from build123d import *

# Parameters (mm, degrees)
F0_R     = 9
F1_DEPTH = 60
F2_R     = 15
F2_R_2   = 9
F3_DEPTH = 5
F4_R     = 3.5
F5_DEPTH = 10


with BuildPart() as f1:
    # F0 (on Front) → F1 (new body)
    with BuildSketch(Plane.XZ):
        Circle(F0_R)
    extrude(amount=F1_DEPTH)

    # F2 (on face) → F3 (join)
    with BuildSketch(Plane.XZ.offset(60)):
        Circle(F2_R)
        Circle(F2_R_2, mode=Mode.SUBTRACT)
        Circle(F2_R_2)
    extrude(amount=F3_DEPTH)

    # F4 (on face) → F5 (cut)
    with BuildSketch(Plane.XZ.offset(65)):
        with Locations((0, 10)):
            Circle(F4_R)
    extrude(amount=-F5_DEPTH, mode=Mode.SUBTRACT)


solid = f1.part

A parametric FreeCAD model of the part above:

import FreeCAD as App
import Part
import Sketcher

V = App.Vector

doc = App.newDocument("Part")
body = doc.addObject("PartDesign::Body", "Body")

# Sketch on XZ plane
sketch1 = body.newObject("Sketcher::SketchObject", "Sketch")
sketch1.AttachmentSupport = (doc.getObject("XZ_Plane"), [""])
sketch1.MapMode = "FlatFace"
sketch1.addGeometry(Part.Circle(V(0, 0, 0), V(0, 0, 1), 9), False)
sketch1.addConstraint([
    Sketcher.Constraint("Coincident", 0, 3, -1, 1),
    Sketcher.Constraint("Diameter", 0, 18.0),
])
pad1 = body.newObject("PartDesign::Pad", "Pad")
pad1.Profile = sketch1
pad1.Length = 60

# Sketch on XZ plane
sketch2 = body.newObject("Sketcher::SketchObject", "Sketch001")
sketch2.AttachmentSupport = (doc.getObject("XZ_Plane"), [""])
sketch2.MapMode = "FlatFace"
sketch2.AttachmentOffset = App.Placement(V(0, 0, 60), App.Rotation())
sketch2.addGeometry(Part.Circle(V(0, 0, 0), V(0, 0, 1), 15), False)
sketch2.addConstraint([
    Sketcher.Constraint("Coincident", 0, 3, -1, 1),
    Sketcher.Constraint("Diameter", 0, 30.0),
])
pad2 = body.newObject("PartDesign::Pad", "Pad001")
pad2.Profile = sketch2
pad2.Length = 5

# Sketch on XZ plane
sketch3 = body.newObject("Sketcher::SketchObject", "Sketch002")
sketch3.AttachmentSupport = (doc.getObject("XZ_Plane"), [""])
sketch3.MapMode = "FlatFace"
sketch3.AttachmentOffset = App.Placement(V(0, 0, 65), App.Rotation())
sketch3.addGeometry(Part.Circle(V(0, 10, 0), V(0, 0, 1), 3.5), False)
sketch3.addConstraint([
    Sketcher.Constraint("PointOnObject", 0, 3, -2),
    Sketcher.Constraint("Diameter", 0, 7.0),
    Sketcher.Constraint("DistanceY", -1, 1, 0, 3, 10.0),
])
pocket1 = body.newObject("PartDesign::Pocket", "Pocket")
pocket1.Profile = sketch3
pocket1.Length = 10

doc.recompute()
